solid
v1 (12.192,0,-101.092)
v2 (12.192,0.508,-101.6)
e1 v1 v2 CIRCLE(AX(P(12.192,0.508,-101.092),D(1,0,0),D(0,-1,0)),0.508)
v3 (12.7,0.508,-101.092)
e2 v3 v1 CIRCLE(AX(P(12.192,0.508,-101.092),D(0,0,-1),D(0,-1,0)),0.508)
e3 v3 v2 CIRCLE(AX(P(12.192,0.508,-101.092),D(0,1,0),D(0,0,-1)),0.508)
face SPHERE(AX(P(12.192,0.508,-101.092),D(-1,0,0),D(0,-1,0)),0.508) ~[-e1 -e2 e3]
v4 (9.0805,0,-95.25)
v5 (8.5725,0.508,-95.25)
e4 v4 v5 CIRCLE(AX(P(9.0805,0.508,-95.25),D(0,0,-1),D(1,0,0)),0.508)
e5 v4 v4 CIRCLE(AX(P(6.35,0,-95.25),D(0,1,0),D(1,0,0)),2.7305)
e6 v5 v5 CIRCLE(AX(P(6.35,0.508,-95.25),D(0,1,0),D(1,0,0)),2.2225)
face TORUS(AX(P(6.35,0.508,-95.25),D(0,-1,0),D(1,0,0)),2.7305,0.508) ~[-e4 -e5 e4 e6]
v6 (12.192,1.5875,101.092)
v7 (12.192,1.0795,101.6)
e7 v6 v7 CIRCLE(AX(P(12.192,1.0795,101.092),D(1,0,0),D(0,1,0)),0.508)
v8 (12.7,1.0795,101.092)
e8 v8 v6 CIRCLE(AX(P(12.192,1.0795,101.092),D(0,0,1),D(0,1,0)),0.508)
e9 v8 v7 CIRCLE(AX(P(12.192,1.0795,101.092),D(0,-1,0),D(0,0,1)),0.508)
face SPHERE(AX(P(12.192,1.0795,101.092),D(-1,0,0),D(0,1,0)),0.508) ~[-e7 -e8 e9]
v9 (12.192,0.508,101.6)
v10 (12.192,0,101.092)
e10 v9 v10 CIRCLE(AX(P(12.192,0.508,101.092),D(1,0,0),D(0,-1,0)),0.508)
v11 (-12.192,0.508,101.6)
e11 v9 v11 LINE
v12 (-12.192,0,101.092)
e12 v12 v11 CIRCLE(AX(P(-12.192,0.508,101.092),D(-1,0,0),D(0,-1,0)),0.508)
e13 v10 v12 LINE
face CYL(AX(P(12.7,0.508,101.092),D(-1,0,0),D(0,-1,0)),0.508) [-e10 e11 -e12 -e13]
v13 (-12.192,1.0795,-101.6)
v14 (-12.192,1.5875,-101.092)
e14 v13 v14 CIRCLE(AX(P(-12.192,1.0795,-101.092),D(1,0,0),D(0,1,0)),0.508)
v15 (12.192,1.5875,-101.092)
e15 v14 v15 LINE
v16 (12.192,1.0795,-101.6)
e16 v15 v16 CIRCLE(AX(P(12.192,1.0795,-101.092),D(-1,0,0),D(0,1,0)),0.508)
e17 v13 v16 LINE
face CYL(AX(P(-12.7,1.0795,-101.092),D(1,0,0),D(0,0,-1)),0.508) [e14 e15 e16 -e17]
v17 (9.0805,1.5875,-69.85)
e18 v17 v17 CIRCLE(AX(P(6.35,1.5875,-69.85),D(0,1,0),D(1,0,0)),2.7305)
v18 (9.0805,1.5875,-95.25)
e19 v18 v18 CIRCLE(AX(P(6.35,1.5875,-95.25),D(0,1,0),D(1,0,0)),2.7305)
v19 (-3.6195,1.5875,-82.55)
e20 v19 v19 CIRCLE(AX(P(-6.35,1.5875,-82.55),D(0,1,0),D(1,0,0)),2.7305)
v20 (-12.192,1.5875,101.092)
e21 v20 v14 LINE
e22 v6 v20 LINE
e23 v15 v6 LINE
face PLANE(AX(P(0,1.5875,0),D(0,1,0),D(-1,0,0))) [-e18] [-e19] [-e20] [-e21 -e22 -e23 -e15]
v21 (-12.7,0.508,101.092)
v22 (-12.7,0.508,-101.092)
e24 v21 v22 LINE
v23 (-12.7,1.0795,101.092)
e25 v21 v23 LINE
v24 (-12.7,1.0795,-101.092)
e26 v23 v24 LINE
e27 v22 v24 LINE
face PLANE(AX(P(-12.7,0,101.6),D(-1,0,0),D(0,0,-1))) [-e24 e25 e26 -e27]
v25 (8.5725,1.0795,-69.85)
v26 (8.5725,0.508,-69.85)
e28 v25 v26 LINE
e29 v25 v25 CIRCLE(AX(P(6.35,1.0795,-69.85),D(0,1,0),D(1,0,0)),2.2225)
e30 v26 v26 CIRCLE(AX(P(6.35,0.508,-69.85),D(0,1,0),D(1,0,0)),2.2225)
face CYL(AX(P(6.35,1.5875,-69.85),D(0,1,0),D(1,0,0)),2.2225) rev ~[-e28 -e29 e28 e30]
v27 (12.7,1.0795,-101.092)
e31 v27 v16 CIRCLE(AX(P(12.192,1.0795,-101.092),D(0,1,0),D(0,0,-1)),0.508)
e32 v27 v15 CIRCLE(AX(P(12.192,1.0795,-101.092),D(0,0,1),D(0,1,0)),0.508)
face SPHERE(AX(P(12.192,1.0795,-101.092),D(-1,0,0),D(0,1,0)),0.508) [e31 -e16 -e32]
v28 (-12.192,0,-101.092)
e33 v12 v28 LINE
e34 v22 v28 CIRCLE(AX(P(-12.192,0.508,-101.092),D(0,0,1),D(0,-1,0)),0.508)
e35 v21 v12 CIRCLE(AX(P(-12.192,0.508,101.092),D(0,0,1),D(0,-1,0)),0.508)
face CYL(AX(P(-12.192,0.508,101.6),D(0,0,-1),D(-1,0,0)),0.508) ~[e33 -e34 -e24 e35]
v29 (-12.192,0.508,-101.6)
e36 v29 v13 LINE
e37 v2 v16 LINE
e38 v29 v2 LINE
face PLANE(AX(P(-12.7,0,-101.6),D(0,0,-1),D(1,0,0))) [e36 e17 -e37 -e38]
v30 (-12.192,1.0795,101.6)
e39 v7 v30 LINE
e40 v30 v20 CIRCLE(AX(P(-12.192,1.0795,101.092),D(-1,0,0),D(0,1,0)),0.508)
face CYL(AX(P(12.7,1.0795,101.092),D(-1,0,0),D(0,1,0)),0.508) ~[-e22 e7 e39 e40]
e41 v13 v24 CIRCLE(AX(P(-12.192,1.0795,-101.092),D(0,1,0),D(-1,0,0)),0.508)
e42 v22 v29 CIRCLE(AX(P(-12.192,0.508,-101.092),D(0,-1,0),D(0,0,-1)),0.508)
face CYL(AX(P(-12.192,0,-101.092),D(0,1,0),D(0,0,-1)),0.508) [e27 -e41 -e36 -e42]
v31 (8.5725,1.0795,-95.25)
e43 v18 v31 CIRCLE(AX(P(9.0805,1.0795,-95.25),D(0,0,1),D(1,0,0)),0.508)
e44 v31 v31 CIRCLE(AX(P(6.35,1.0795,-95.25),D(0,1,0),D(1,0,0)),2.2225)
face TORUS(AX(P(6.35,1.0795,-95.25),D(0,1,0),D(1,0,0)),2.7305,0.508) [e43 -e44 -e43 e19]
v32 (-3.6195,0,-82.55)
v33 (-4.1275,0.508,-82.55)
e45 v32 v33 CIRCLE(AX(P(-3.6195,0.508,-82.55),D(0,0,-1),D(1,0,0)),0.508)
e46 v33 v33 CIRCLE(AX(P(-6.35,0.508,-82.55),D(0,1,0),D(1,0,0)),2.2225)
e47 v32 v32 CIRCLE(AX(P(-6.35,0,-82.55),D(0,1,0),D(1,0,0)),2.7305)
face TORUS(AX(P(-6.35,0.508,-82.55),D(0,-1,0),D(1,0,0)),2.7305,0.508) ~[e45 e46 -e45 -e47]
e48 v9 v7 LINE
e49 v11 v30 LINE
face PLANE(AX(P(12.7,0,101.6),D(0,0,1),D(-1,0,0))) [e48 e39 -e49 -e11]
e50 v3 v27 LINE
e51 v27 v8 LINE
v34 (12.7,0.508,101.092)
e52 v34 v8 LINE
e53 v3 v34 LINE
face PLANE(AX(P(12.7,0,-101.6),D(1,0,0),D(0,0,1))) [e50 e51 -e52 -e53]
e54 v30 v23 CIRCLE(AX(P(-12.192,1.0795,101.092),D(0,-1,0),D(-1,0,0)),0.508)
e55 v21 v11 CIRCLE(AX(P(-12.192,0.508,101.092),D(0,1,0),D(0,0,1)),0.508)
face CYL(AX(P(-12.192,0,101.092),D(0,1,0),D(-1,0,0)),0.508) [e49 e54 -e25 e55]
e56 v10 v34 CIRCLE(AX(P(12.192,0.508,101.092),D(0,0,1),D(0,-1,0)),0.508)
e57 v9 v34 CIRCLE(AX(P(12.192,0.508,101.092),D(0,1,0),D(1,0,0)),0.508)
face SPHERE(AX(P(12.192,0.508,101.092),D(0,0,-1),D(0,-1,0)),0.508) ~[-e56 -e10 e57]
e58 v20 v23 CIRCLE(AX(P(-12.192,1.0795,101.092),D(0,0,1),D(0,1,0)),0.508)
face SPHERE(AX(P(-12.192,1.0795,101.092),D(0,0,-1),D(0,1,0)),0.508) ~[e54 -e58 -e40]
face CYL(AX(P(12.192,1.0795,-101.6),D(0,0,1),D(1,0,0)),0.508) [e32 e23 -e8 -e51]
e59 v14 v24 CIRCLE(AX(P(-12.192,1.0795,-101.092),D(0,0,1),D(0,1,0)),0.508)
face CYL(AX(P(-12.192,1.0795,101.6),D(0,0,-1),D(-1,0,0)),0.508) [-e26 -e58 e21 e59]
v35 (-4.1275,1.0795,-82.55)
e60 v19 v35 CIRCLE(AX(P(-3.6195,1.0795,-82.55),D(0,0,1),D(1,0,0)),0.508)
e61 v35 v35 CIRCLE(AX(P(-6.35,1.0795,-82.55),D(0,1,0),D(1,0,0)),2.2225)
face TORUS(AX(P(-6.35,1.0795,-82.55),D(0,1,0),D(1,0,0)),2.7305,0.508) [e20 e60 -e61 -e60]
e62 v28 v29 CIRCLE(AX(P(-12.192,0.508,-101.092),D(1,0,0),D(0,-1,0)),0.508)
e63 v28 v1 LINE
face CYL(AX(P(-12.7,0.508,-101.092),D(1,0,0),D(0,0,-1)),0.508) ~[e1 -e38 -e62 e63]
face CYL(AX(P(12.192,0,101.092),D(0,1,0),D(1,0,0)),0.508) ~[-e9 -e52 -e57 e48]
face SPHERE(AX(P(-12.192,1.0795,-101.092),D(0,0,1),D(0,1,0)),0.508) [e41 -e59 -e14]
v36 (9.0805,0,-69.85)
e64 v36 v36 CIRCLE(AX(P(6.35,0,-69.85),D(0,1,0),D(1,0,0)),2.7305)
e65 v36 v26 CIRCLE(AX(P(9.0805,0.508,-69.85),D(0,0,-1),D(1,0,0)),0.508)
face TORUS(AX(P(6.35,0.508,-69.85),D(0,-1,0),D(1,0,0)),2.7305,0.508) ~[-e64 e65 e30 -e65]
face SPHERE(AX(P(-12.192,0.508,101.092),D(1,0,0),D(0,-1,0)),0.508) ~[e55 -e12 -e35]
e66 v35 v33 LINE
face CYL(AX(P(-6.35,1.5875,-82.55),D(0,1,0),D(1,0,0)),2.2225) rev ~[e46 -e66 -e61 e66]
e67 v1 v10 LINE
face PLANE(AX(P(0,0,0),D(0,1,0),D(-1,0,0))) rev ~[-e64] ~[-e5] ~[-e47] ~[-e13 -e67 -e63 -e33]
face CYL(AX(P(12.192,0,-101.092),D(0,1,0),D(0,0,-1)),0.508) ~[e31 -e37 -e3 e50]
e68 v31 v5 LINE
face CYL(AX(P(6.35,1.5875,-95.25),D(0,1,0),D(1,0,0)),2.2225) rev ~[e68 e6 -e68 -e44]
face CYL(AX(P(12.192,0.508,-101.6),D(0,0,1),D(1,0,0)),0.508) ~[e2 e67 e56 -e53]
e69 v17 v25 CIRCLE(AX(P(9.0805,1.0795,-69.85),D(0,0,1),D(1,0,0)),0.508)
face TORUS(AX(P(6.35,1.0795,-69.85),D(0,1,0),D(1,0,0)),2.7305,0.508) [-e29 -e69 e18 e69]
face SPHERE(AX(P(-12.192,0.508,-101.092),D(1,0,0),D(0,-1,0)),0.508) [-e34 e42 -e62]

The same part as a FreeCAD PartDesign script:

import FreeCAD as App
import Part
import Sketcher
from FreeCAD import Vector
Q = App.Units.Quantity

doc = App.newDocument("Part")
body = doc.addObject("PartDesign::Body", "Body")

# Sketch on XZ plane
sketch1 = body.newObject("Sketcher::SketchObject", "Sketch")
sketch1.AttachmentSupport = (doc.getObject("XZ_Plane"), [""])
sketch1.MapMode = "FlatFace"
sketch1.addGeometry([
    Part.LineSegment(Vector(13, -102, 0), Vector(-13, -102, 0)),
    Part.LineSegment(Vector(-13, -102, 0), Vector(-13, 102, 0)),
    Part.LineSegment(Vector(-13, 102, 0), Vector(13, 102, 0)),
    Part.LineSegment(Vector(13, 102, 0), Vector(13, -102, 0)),
], False)
sketch1.addConstraint([
    Sketcher.Constraint("Coincident", 0, 2, 1, 1),
    Sketcher.Constraint("Coincident", 1, 2, 2, 1),
    Sketcher.Constraint("Coincident", 2, 2, 3, 1),
    Sketcher.Constraint("Coincident", 3, 2, 0, 1),
    Sketcher.Constraint("Horizontal", 0),
    Sketcher.Constraint("Vertical", 1),
    Sketcher.Constraint("Horizontal", 2),
    Sketcher.Constraint("Vertical", 3),
    Sketcher.Constraint("Symmetric", 0, 2, 2, 2, -1, 1),
    Sketcher.Constraint("DistanceX", 0, 2, 0, 1, Q("1 in")),
    Sketcher.Constraint("DistanceY", 1, 1, 1, 2, Q("8 in")),
])
pad1 = body.newObject("PartDesign::Pad", "Pad")
pad1.Profile = sketch1
pad1.Length = Q("0.0625 in")
pad1.Reversed = True

# Sketch on XZ plane
sketch2 = body.newObject("Sketcher::SketchObject", "Sketch001")
sketch2.AttachmentSupport = (doc.getObject("XZ_Plane"), [""])
sketch2.MapMode = "FlatFace"
sketch2.AttachmentOffset = App.Placement(Vector(0, 0, -0.0625 * 25.4), App.Rotation())
sketch2.addGeometry([
    Part.Circle(Vector(-6.3, -82.5, 0), Vector(0, 0, 1), 2.2),
    Part.Circle(Vector(6.3, -95.2, 0), Vector(0, 0, 1), 2.2),
    Part.Circle(Vector(6.3, -69.8, 0), Vector(0, 0, 1), 2.2),
], False)
sketch2.addConstraint([
    Sketcher.Constraint("Equal", 0, 1),
    Sketcher.Constraint("Equal", 1, 2),
    Sketcher.Constraint("Vertical", 1, 3, 2, 3),
    Sketcher.Constraint("Diameter", 0, Q("0.175 in")),
    Sketcher.Constraint("DistanceX", 0, 3, 1, 3, Q("0.5 in")),
    Sketcher.Constraint("DistanceY", 1, 3, 0, 3, Q("0.5 in")),
    Sketcher.Constraint("DistanceY", 0, 3, 2, 3, Q("0.5 in")),
    Sketcher.Constraint("DistanceX", 0, 3, -1, 1, Q("0.25 in")),
    Sketcher.Constraint("DistanceY", 0, 3, -1, 1, Q("3.25 in")),
])
pocket1 = body.newObject("PartDesign::Pocket", "Pocket")
pocket1.Profile = sketch2
pocket1.Length = Q("0.0625 in")
pocket1.Reversed = True
doc.recompute()

fillet = body.newObject("PartDesign::Fillet", "Fillet")
fillet.Base = (pocket1, ["Edge1"])
fillet.UseAllEdges = True
fillet.Radius = Q("0.02 in")

doc.recompute()
